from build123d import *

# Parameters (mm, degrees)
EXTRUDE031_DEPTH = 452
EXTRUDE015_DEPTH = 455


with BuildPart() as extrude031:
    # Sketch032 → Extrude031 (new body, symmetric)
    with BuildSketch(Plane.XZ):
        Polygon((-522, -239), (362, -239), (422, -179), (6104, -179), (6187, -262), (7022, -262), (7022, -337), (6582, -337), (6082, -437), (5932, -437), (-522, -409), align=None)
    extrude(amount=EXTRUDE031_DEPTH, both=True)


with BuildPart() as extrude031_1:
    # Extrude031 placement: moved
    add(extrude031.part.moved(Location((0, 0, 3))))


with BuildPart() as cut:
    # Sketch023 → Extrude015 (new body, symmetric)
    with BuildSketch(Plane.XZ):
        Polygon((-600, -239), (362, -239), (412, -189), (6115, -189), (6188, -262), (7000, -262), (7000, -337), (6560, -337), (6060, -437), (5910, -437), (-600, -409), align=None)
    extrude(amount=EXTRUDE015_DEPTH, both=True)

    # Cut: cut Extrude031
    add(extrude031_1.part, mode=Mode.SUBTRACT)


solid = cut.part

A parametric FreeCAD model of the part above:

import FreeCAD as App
import Part
import Sketcher

V = App.Vector
Q = App.Units.Quantity

doc = App.newDocument("Part")
body = doc.addObject("PartDesign::Body", "Body")

# Sketch on XZ plane
sketch1 = body.newObject("Sketcher::SketchObject", "Sketch")
sketch1.AttachmentSupport = (doc.getObject("XZ_Plane"), [""])
sketch1.MapMode = "FlatFace"
sketch1.addGeometry(Part.LineSegment(V(362, -239, 0), V(-522, -239, 0)), False)
sketch1.addGeometry(Part.LineSegment(V(-522, -239, 0), V(-522, -409, 0)), False)
sketch1.addGeometry(Part.LineSegment(V(-522, -409, 0), V(5932, -437, 0)), False)
sketch1.addGeometry(Part.LineSegment(V(5932, -437, 0), V(6082, -437, 0)), False)
sketch1.addGeometry(Part.LineSegment(V(6082, -437, 0), V(6582, -337, 0)), False)
sketch1.addGeometry(Part.LineSegment(V(6582, -337, 0), V(7022, -337, 0)), False)
sketch1.addGeometry(Part.LineSegment(V(7022, -337, 0), V(7022, -262, 0)), False)
sketch1.addGeometry(Part.LineSegment(V(7022, -262, 0), V(6187, -262, 0)), False)
sketch1.addGeometry(Part.LineSegment(V(6187, -262, 0), V(6104, -179, 0)), False)
sketch1.addGeometry(Part.LineSegment(V(6104, -179, 0), V(422, -179, 0)), False)
sketch1.addGeometry(Part.LineSegment(V(422, -179, 0), V(362, -239, 0)), False)
sketch1.addConstraint(Sketcher.Constraint("Coincident", 0, 2, 1, 1))
sketch1.addConstraint(Sketcher.Constraint("Coincident", 1, 2, 2, 1))
sketch1.addConstraint(Sketcher.Constraint("Coincident", 2, 2, 3, 1))
sketch1.addConstraint(Sketcher.Constraint("Coincident", 3, 2, 4, 1))
sketch1.addConstraint(Sketcher.Constraint("Coincident", 4, 2, 5, 1))
sketch1.addConstraint(Sketcher.Constraint("Coincident", 5, 2, 6, 1))
sketch1.addConstraint(Sketcher.Constraint("Coincident", 6, 2, 7, 1))
sketch1.addConstraint(Sketcher.Constraint("Coincident", 7, 2, 8, 1))
sketch1.addConstraint(Sketcher.Constraint("Coincident", 8, 2, 9, 1))
sketch1.addConstraint(Sketcher.Constraint("Coincident", 9, 2, 10, 1))
sketch1.addConstraint(Sketcher.Constraint("Coincident", 10, 2, 0, 1))
sketch1.addConstraint(Sketcher.Constraint("Horizontal", 0))
sketch1.addConstraint(Sketcher.Constraint("Vertical", 1))
sketch1.addConstraint(Sketcher.Constraint("Horizontal", 3))
sketch1.addConstraint(Sketcher.Constraint("Horizontal", 5))
sketch1.addConstraint(Sketcher.Constraint("Vertical", 6))
sketch1.addConstraint(Sketcher.Constraint("Horizontal", 7))
sketch1.addConstraint(Sketcher.Constraint("Horizontal", 9))
sketch1.addConstraint(Sketcher.Constraint("Perpendicular", 8, 10))
sketch1.addConstraint(Sketcher.Constraint("DistanceX", 0, 2, 0, 1, 884.0))
sketch1.addConstraint(Sketcher.Constraint("DistanceX", 3, 1, 3, 2, 150.0))
sketch1.addConstraint(Sketcher.Constraint("DistanceX", 5, 1, 5, 2, 440.0))
sketch1.addConstraint(Sketcher.Constraint("DistanceX", 7, 2, 7, 1, 835.0))
sketch1.addConstraint(Sketcher.Constraint("DistanceX", 9, 2, 9, 1, 5682.0))
sketch1.addConstraint(Sketcher.Constraint("DistanceY", 1, 2, 1, 1, 170.0))
sketch1.addConstraint(Sketcher.Constraint("DistanceY", 6, 1, 6, 2, 75.0))
sketch1.addConstraint(Sketcher.Constraint("Angle", 8, Q("135 deg")))
sketch1.addConstraint(Sketcher.Constraint("DistanceX", 0, 2, -1, 1, 522.0))
sketch1.addConstraint(Sketcher.Constraint("DistanceY", 0, 2, -1, 1, 239.0))
sketch1.addConstraint(Sketcher.Constraint("DistanceX", -1, 1, 2, 2, 5932.0))
sketch1.addConstraint(Sketcher.Constraint("DistanceY", 2, 2, -1, 1, 437.0))
sketch1.addConstraint(Sketcher.Constraint("DistanceX", -1, 1, 4, 2, 6582.0))
sketch1.addConstraint(Sketcher.Constraint("DistanceY", 4, 2, -1, 1, 337.0))
pad1 = body.newObject("PartDesign::Pad", "Pad")
pad1.Profile = sketch1
pad1.Length = 904
pad1.Midplane = True
body2 = doc.addObject("PartDesign::Body", "Body001")
doc.recompute()

body.Placement = App.Placement(V(0, 0, 3), App.Rotation(V(0, 0, 1), 0))
boolean = body2.newObject("PartDesign::Boolean", "Boolean")
boolean.Type = "Fuse"
boolean.addObjects([body])
body3 = doc.addObject("PartDesign::Body", "Body002")

# Sketch on XZ plane
sketch2 = body3.newObject("Sketcher::SketchObject", "Sketch001")
sketch2.AttachmentSupport = (doc.getObject("XZ_Plane002"), [""])
sketch2.MapMode = "FlatFace"
sketch2.addGeometry(Part.LineSegment(V(362, -239, 0), V(-600, -239, 0)), False)
sketch2.addGeometry(Part.LineSegment(V(-600, -239, 0), V(-600, -409, 0)), False)
sketch2.addGeometry(Part.LineSegment(V(-600, -409, 0), V(5910, -437, 0)), False)
sketch2.addGeometry(Part.LineSegment(V(5910, -437, 0), V(6060, -437, 0)), False)
sketch2.addGeometry(Part.LineSegment(V(6060, -437, 0), V(6560, -337, 0)), False)
sketch2.addGeometry(Part.LineSegment(V(6560, -337, 0), V(7000, -337, 0)), False)
sketch2.addGeometry(Part.LineSegment(V(7000, -337, 0), V(7000, -262, 0)), False)
sketch2.addGeometry(Part.LineSegment(V(7000, -262, 0), V(6188, -262, 0)), False)
sketch2.addGeometry(Part.LineSegment(V(6188, -262, 0), V(6115, -189, 0)), False)
sketch2.addGeometry(Part.LineSegment(V(6115, -189, 0), V(412, -189, 0)), False)
sketch2.addGeometry(Part.LineSegment(V(412, -189, 0), V(362, -239, 0)), False)
sketch2.addConstraint(Sketcher.Constraint("Coincident", 0, 2, 1, 1))
sketch2.addConstraint(Sketcher.Constraint("Coincident", 1, 2, 2, 1))
sketch2.addConstraint(Sketcher.Constraint("Coincident", 2, 2, 3, 1))
sketch2.addConstraint(Sketcher.Constraint("Coincident", 3, 2, 4, 1))
sketch2.addConstraint(Sketcher.Constraint("Coincident", 4, 2, 5, 1))
sketch2.addConstraint(Sketcher.Constraint("Coincident", 5, 2, 6, 1))
sketch2.addConstraint(Sketcher.Constraint("Coincident", 6, 2, 7, 1))
sketch2.addConstraint(Sketcher.Constraint("Coincident", 7, 2, 8, 1))
sketch2.addConstraint(Sketcher.Constraint("Coincident", 8, 2, 9, 1))
sketch2.addConstraint(Sketcher.Constraint("Coincident", 9, 2, 10, 1))
sketch2.addConstraint(Sketcher.Constraint("Coincident", 10, 2, 0, 1))
sketch2.addConstraint(Sketcher.Constraint("Horizontal", 0))
sketch2.addConstraint(Sketcher.Constraint("Vertical", 1))
sketch2.addConstraint(Sketcher.Constraint("Horizontal", 3))
sketch2.addConstraint(Sketcher.Constraint("Horizontal", 5))
sketch2.addConstraint(Sketcher.Constraint("Vertical", 6))
sketch2.addConstraint(Sketcher.Constraint("Horizontal", 7))
sketch2.addConstraint(Sketcher.Constraint("Horizontal", 9))
sketch2.addConstraint(Sketcher.Constraint("Perpendicular", 8, 10))
sketch2.addConstraint(Sketcher.Constraint("DistanceX", 0, 2, 0, 1, 962.0))
sketch2.addConstraint(Sketcher.Constraint("DistanceX", 3, 1, 3, 2, 150.0))
sketch2.addConstraint(Sketcher.Constraint("DistanceX", 5, 1, 5, 2, 440.0))
sketch2.addConstraint(Sketcher.Constraint("DistanceX", 7, 2, 7, 1, 812.0))
sketch2.addConstraint(Sketcher.Constraint("DistanceX", 9, 2, 9, 1, 5703.0))
sketch2.addConstraint(Sketcher.Constraint("DistanceY", 1, 2, 1, 1, 170.0))
sketch2.addConstraint(Sketcher.Constraint("DistanceY", 6, 1, 6, 2, 75.0))
sketch2.addConstraint(Sketcher.Constraint("Angle", 8, Q("135 deg")))
sketch2.addConstraint(Sketcher.Constraint("DistanceX", 0, 2, -1, 1, 600.0))
sketch2.addConstraint(Sketcher.Constraint("DistanceY", 0, 2, -1, 1, 239.0))
sketch2.addConstraint(Sketcher.Constraint("DistanceX", -1, 1, 2, 2, 5910.0))
sketch2.addConstraint(Sketcher.Constraint("DistanceY", 2, 2, -1, 1, 437.0))
sketch2.addConstraint(Sketcher.Constraint("DistanceX", -1, 1, 4, 2, 6560.0))
sketch2.addConstraint(Sketcher.Constraint("DistanceY", 4, 2, -1, 1, 337.0))
pad2 = body3.newObject("PartDesign::Pad", "Pad001")
pad2.Profile = sketch2
pad2.Length = 910
pad2.Midplane = True
doc.recompute()

boolean2 = body3.newObject("PartDesign::Boolean", "Boolean001")
boolean2.Type = "Cut"
boolean2.addObjects([body2])

doc.recompute()
